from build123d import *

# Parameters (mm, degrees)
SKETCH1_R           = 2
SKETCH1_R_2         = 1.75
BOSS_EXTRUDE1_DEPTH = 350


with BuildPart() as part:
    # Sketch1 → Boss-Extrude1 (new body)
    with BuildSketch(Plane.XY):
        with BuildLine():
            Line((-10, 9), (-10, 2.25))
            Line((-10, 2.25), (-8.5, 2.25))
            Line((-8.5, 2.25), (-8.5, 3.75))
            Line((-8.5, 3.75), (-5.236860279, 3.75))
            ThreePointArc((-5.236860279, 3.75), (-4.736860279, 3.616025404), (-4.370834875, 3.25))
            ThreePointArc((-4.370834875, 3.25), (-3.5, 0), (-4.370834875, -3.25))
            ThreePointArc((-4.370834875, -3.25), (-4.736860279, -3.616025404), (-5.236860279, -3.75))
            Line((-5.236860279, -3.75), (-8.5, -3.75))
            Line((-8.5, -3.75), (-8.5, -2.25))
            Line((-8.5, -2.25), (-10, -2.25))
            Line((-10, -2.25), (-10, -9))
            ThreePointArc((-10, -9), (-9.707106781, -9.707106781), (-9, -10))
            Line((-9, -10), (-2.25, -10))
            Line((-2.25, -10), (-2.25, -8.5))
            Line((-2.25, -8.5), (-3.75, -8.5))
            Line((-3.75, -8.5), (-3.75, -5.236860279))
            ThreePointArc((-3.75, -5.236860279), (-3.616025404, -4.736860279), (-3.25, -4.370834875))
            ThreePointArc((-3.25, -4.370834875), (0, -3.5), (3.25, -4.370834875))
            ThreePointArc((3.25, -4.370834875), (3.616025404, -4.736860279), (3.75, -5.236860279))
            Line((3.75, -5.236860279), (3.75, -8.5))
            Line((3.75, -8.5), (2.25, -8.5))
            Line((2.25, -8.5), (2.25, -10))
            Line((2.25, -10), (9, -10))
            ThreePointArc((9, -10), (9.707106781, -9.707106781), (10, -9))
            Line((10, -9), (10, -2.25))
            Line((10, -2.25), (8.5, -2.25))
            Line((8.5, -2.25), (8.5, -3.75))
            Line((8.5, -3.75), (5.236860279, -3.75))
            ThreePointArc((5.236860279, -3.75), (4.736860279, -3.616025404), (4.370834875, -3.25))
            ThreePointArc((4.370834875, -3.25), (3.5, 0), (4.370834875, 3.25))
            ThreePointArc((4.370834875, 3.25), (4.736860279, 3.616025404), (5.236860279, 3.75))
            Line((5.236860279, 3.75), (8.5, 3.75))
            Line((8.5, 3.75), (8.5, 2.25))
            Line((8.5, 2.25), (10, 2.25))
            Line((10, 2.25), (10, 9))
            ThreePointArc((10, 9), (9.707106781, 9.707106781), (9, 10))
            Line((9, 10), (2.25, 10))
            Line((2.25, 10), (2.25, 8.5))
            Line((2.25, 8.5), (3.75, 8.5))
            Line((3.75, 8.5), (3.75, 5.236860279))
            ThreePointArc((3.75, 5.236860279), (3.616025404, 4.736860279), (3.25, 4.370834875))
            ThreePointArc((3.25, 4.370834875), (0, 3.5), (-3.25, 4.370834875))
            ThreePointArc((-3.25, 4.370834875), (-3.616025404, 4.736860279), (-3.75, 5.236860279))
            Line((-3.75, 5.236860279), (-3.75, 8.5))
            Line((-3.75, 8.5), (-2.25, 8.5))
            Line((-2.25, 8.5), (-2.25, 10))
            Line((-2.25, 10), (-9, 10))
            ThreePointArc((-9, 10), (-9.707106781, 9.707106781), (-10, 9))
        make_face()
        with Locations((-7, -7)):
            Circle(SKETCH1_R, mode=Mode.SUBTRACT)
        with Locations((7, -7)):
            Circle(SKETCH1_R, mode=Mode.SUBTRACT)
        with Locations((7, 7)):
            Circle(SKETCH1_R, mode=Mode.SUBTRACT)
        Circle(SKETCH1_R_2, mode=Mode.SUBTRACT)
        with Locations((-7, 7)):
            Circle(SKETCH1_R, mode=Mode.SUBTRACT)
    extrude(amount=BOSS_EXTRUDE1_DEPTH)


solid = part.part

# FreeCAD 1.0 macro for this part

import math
import FreeCAD as App
import Part
import Sketcher
Q = App.Units.Quantity

doc = App.newDocument("Part")
body = doc.addObject("PartDesign::Body", "Body")

sketch1 = body.newObject("Sketcher::SketchObject", "Sketch")
sketch1.AttachmentSupport = (doc.getObject("XY_Plane"), [""])
sketch1.MapMode = "FlatFace"
sketch1.addGeometry([
    Part.LineSegment(App.Vector(-10, 9, 0), App.Vector(-10, 2.25, 0)),
    Part.LineSegment(App.Vector(-10, 2.25, 0), App.Vector(-8.5, 2.25, 0)),
    Part.LineSegment(App.Vector(-8.5, 2.25, 0), App.Vector(-8.5, 3.75, 0)),
    Part.LineSegment(App.Vector(-8.5, 3.75, 0), App.Vector(-5.23686, 3.75, 0)),
    Part.ArcOfCircle(Part.Circle(App.Vector(-5.23686, 2.75, 0), App.Vector(0, 0, 1), 1), math.radians(30), math.radians(90)),
    Part.ArcOfCircle(Part.Circle(App.Vector(-10, 0, 0), App.Vector(0, 0, 1), 6.5), math.radians(-30), math.radians(30)),
    Part.ArcOfCircle(Part.Circle(App.Vector(-5.23686, -2.75, 0), App.Vector(0, 0, 1), 1), math.radians(-90), math.radians(-30)),
    Part.LineSegment(App.Vector(-5.23686, -3.75, 0), App.Vector(-8.5, -3.75, 0)),
    Part.LineSegment(App.Vector(-8.5, -3.75, 0), App.Vector(-8.5, -2.25, 0)),
    Part.LineSegment(App.Vector(-8.5, -2.25, 0), App.Vector(-10, -2.25, 0)),
    Part.LineSegment(App.Vector(-10, -2.25, 0), App.Vector(-10, -9, 0)),
    Part.ArcOfCircle(Part.Circle(App.Vector(-9, -9, 0), App.Vector(0, 0, 1), 1), math.radians(-180), math.radians(-90)),
    Part.LineSegment(App.Vector(-9, -10, 0), App.Vector(-2.25, -10, 0)),
    Part.LineSegment(App.Vector(-2.25, -10, 0), App.Vector(-2.25, -8.5, 0)),
    Part.LineSegment(App.Vector(-2.25, -8.5, 0), App.Vector(-3.75, -8.5, 0)),
    Part.LineSegment(App.Vector(-3.75, -8.5, 0), App.Vector(-3.75, -5.23686, 0)),
    Part.ArcOfCircle(Part.Circle(App.Vector(-2.75, -5.23686, 0), App.Vector(0, 0, 1), 1), math.radians(120), math.radians(180)),
    Part.ArcOfCircle(Part.Circle(App.Vector(0, -10, 0), App.Vector(0, 0, 1), 6.5), math.radians(60), math.radians(120)),
    Part.ArcOfCircle(Part.Circle(App.Vector(2.75, -5.23686, 0), App.Vector(0, 0, 1), 1), math.radians(0), math.radians(60)),
    Part.LineSegment(App.Vector(3.75, -5.23686, 0), App.Vector(3.75, -8.5, 0)),
    Part.LineSegment(App.Vector(3.75, -8.5, 0), App.Vector(2.25, -8.5, 0)),
    Part.LineSegment(App.Vector(2.25, -8.5, 0), App.Vector(2.25, -10, 0)),
    Part.LineSegment(App.Vector(2.25, -10, 0), App.Vector(9, -10, 0)),
    Part.ArcOfCircle(Part.Circle(App.Vector(9, -9, 0), App.Vector(0, 0, 1), 1), math.radians(-90), math.radians(0)),
    Part.LineSegment(App.Vector(10, -9, 0), App.Vector(10, -2.25, 0)),
    Part.LineSegment(App.Vector(10, -2.25, 0), App.Vector(8.5, -2.25, 0)),
    Part.LineSegment(App.Vector(8.5, -2.25, 0), App.Vector(8.5, -3.75, 0)),
    Part.LineSegment(App.Vector(8.5, -3.75, 0), App.Vector(5.23686, -3.75, 0)),
    Part.ArcOfCircle(Part.Circle(App.Vector(5.23686, -2.75, 0), App.Vector(0, 0, 1), 1), math.radians(-150), math.radians(-90)),
    Part.ArcOfCircle(Part.Circle(App.Vector(10, 0, 0), App.Vector(0, 0, 1), 6.5), math.radians(150), math.radians(210)),
    Part.ArcOfCircle(Part.Circle(App.Vector(5.23686, 2.75, 0), App.Vector(0, 0, 1), 1), math.radians(90), math.radians(150)),
    Part.LineSegment(App.Vector(5.23686, 3.75, 0), App.Vector(8.5, 3.75, 0)),
    Part.LineSegment(App.Vector(8.5, 3.75, 0), App.Vector(8.5, 2.25, 0)),
    Part.LineSegment(App.Vector(8.5, 2.25, 0), App.Vector(10, 2.25, 0)),
    Part.LineSegment(App.Vector(10, 2.25, 0), App.Vector(10, 9, 0)),
    Part.ArcOfCircle(Part.Circle(App.Vector(9, 9, 0), App.Vector(0, 0, 1), 1), math.radians(0), math.radians(90)),
    Part.LineSegment(App.Vector(9, 10, 0), App.Vector(2.25, 10, 0)),
    Part.LineSegment(App.Vector(2.25, 10, 0), App.Vector(2.25, 8.5, 0)),
    Part.LineSegment(App.Vector(2.25, 8.5, 0), App.Vector(3.75, 8.5, 0)),
    Part.LineSegment(App.Vector(3.75, 8.5, 0), App.Vector(3.75, 5.23686, 0)),
    Part.ArcOfCircle(Part.Circle(App.Vector(2.75, 5.23686, 0), App.Vector(0, 0, 1), 1), math.radians(-60), math.radians(0)),
    Part.ArcOfCircle(Part.Circle(App.Vector(0, 10, 0), App.Vector(0, 0, 1), 6.5), math.radians(-120), math.radians(-60)),
    Part.ArcOfCircle(Part.Circle(App.Vector(-2.75, 5.23686, 0), App.Vector(0, 0, 1), 1), math.radians(180), math.radians(240)),
    Part.LineSegment(App.Vector(-3.75, 5.23686, 0), App.Vector(-3.75, 8.5, 0)),
    Part.LineSegment(App.Vector(-3.75, 8.5, 0), App.Vector(-2.25, 8.5, 0)),
    Part.LineSegment(App.Vector(-2.25, 8.5, 0), App.Vector(-2.25, 10, 0)),
    Part.LineSegment(App.Vector(-2.25, 10, 0), App.Vector(-9, 10, 0)),
    Part.ArcOfCircle(Part.Circle(App.Vector(-9, 9, 0), App.Vector(0, 0, 1), 1), math.radians(90), math.radians(180)),
    Part.Circle(App.Vector(-7, -7, 0), App.Vector(0, 0, 1), 2),
    Part.Circle(App.Vector(7, -7, 0), App.Vector(0, 0, 1), 2),
    Part.Circle(App.Vector(-7, 7, 0), App.Vector(0, 0, 1), 2),
    Part.Circle(App.Vector(0, 0, 0), App.Vector(0, 0, 1), 1.75),
    Part.Circle(App.Vector(7, 7, 0), App.Vector(0, 0, 1), 2),
], False)
sketch1.addConstraint([
    Sketcher.Constraint("Coincident", 0, 2, 1, 1),
    Sketcher.Constraint("Coincident", 1, 2, 2, 1),
    Sketcher.Constraint("Coincident", 2, 2, 3, 1),
    Sketcher.Constraint("Tangent", 3, 2, 4, 2),
    Sketcher.Constraint("Tangent", 4, 1, 5, 2),
    Sketcher.Constraint("Tangent", 5, 1, 6, 2),
    Sketcher.Constraint("Tangent", 6, 1, 7, 1),
    Sketcher.Constraint("Coincident", 7, 2, 8, 1),
    Sketcher.Constraint("Coincident", 8, 2, 9, 1),
    Sketcher.Constraint("Coincident", 9, 2, 10, 1),
    Sketcher.Constraint("Tangent", 10, 2, 11, 1),
    Sketcher.Constraint("Tangent", 11, 2, 12, 1),
    Sketcher.Constraint("Coincident", 12, 2, 13, 1),
    Sketcher.Constraint("Coincident", 13, 2, 14, 1),
    Sketcher.Constraint("Coincident", 14, 2, 15, 1),
    Sketcher.Constraint("Tangent", 15, 2, 16, 2),
    Sketcher.Constraint("Tangent", 16, 1, 17, 2),
    Sketcher.Constraint("Tangent", 17, 1, 18, 2),
    Sketcher.Constraint("Tangent", 18, 1, 19, 1),
    Sketcher.Constraint("Coincident", 19, 2, 20, 1),
    Sketcher.Constraint("Coincident", 20, 2, 21, 1),
    Sketcher.Constraint("Coincident", 21, 2, 22, 1),
    Sketcher.Constraint("Tangent", 22, 2, 23, 1),
    Sketcher.Constraint("Tangent", 23, 2, 24, 1),
    Sketcher.Constraint("Coincident", 24, 2, 25, 1),
    Sketcher.Constraint("Coincident", 25, 2, 26, 1),
    Sketcher.Constraint("Coincident", 26, 2, 27, 1),
    Sketcher.Constraint("Tangent", 27, 2, 28, 2),
    Sketcher.Constraint("Tangent", 28, 1, 29, 2),
    Sketcher.Constraint("Tangent", 29, 1, 30, 2),
    Sketcher.Constraint("Tangent", 30, 1, 31, 1),
    Sketcher.Constraint("Coincident", 31, 2, 32, 1),
    Sketcher.Constraint("Coincident", 32, 2, 33, 1),
    Sketcher.Constraint("Coincident", 33, 2, 34, 1),
    Sketcher.Constraint("Tangent", 34, 2, 35, 1),
    Sketcher.Constraint("Tangent", 35, 2, 36, 1),
    Sketcher.Constraint("Coincident", 36, 2, 37, 1),
    Sketcher.Constraint("Coincident", 37, 2, 38, 1),
    Sketcher.Constraint("Coincident", 38, 2, 39, 1),
    Sketcher.Constraint("Tangent", 39, 2, 40, 2),
    Sketcher.Constraint("Tangent", 40, 1, 41, 2),
    Sketcher.Constraint("Tangent", 41, 1, 42, 2),
    Sketcher.Constraint("Tangent", 42, 1, 43, 1),
    Sketcher.Constraint("Coincident", 43, 2, 44, 1),
    Sketcher.Constraint("Coincident", 44, 2, 45, 1),
    Sketcher.Constraint("Coincident", 45, 2, 46, 1),
    Sketcher.Constraint("Tangent", 46, 2, 47, 1),
    Sketcher.Constraint("Tangent", 47, 2, 0, 1),
    Sketcher.Constraint("Vertical", 0),
    Sketcher.Constraint("Horizontal", 1),
    Sketcher.Constraint("Vertical", 2),
    Sketcher.Constraint("Horizontal", 3),
    Sketcher.Constraint("Horizontal", 7),
    Sketcher.Constraint("Vertical", 8),
    Sketcher.Constraint("Horizontal", 9),
    Sketcher.Constraint("Vertical", 10),
    Sketcher.Constraint("Horizontal", 12),
    Sketcher.Constraint("Vertical", 13),
    Sketcher.Constraint("Horizontal", 14),
    Sketcher.Constraint("Vertical", 15),
    Sketcher.Constraint("Vertical", 19),
    Sketcher.Constraint("Horizontal", 20),
    Sketcher.Constraint("Vertical", 21),
    Sketcher.Constraint("Horizontal", 22),
    Sketcher.Constraint("Vertical", 24),
    Sketcher.Constraint("Horizontal", 25),
    Sketcher.Constraint("Vertical", 26),
    Sketcher.Constraint("Horizontal", 27),
    Sketcher.Constraint("Horizontal", 31),
    Sketcher.Constraint("Vertical", 32),
    Sketcher.Constraint("Horizontal", 33),
    Sketcher.Constraint("Vertical", 34),
    Sketcher.Constraint("Horizontal", 36),
    Sketcher.Constraint("Vertical", 37),
    Sketcher.Constraint("Horizontal", 38),
    Sketcher.Constraint("Vertical", 39),
    Sketcher.Constraint("Vertical", 43),
    Sketcher.Constraint("Horizontal", 44),
    Sketcher.Constraint("Vertical", 45),
    Sketcher.Constraint("Horizontal", 46),
    Sketcher.Constraint("Coincident", 51, 3, -1, 1),
    Sketcher.Constraint("Equal", 4, 6),
    Sketcher.Constraint("Equal", 6, 11),
    Sketcher.Constraint("Equal", 11, 16),
    Sketcher.Constraint("Equal", 5, 17),
    Sketcher.Constraint("Equal", 16, 18),
    Sketcher.Constraint("Equal", 18, 23),
    Sketcher.Constraint("Equal", 23, 28),
    Sketcher.Constraint("Equal", 17, 29),
    Sketcher.Constraint("Equal", 28, 30),
    Sketcher.Constraint("Equal", 30, 35),
    Sketcher.Constraint("Equal", 35, 40),
    Sketcher.Constraint("Equal", 29, 41),
    Sketcher.Constraint("Equal", 40, 42),
    Sketcher.Constraint("Equal", 42, 47),
    Sketcher.Constraint("Equal", 48, 49),
    Sketcher.Constraint("Equal", 49, 50),
    Sketcher.Constraint("Equal", 50, 52),
    Sketcher.Constraint("Symmetric", 4, 3, 28, 3, -1, 1),
    Sketcher.Constraint("Symmetric", 6, 3, 30, 3, -1, 1),
    Sketcher.Constraint("Symmetric", 11, 3, 35, 3, -1, 1),
    Sketcher.Constraint("Symmetric", 16, 3, 40, 3, -1, 1),
    Sketcher.Constraint("Symmetric", 18, 3, 42, 3, -1, 1),
    Sketcher.Constraint("Symmetric", 23, 3, 47, 3, -1, 1),
    Sketcher.Constraint("Symmetric", 49, 3, 50, 3, -1, 1),
    Sketcher.Constraint("Symmetric", 48, 3, 52, 3, -1, 1),
    Sketcher.Constraint("Symmetric", 1, 2, 25, 2, -1, 1),
    Sketcher.Constraint("Symmetric", 8, 2, 32, 2, -1, 1),
    Sketcher.Constraint("Symmetric", 13, 2, 37, 2, -1, 1),
    Sketcher.Constraint("Symmetric", 20, 2, 44, 2, -1, 1),
    Sketcher.Constraint("Symmetric", 16, 3, 18, 3, -2),
    Sketcher.Constraint("Symmetric", 11, 3, 23, 3, -2),
    Sketcher.Constraint("Symmetric", 6, 3, 28, 3, -2),
    Sketcher.Constraint("Symmetric", 48, 3, 49, 3, -2),
    Sketcher.Constraint("Symmetric", 13, 2, 20, 2, -2),
    Sketcher.Constraint("Symmetric", 8, 2, 25, 2, -2),
    Sketcher.Constraint("Horizontal", 17, 3, 11, 2),
    Sketcher.Constraint("Vertical", 5, 3, 0, 2),
    Sketcher.Constraint("Equal", 9, 14),
    Sketcher.Constraint("Equal", 46, 0),
    Sketcher.Constraint("Equal", 44, 2),
    Sketcher.Constraint("Equal", 8, 13),
    Sketcher.Constraint("Equal", 31, 15),
    Sketcher.Constraint("Diameter", 48, Q("4 mm")),
    Sketcher.Constraint("Radius", 4, Q("1 mm")),
    Sketcher.Constraint("Diameter", 51, Q("3.5 mm")),
    Sketcher.Constraint("Radius", 5, Q("6.5 mm")),
    Sketcher.Constraint("DistanceX", 1, 1, 1, 2, Q("1.5 mm")),
    Sketcher.Constraint("DistanceX", 5, 3, -1, 1, Q("10 mm")),
    Sketcher.Constraint("DistanceX", 48, 3, -1, 1, Q("7 mm")),
    Sketcher.Constraint("DistanceY", 48, 3, -1, 1, Q("7 mm")),
    Sketcher.Constraint("DistanceX", 12, 1, 12, 2, Q("6.75 mm")),
])
pad1 = body.newObject("PartDesign::Pad", "Pad")
pad1.Profile = sketch1
pad1.Length = 350

doc.recompute()
